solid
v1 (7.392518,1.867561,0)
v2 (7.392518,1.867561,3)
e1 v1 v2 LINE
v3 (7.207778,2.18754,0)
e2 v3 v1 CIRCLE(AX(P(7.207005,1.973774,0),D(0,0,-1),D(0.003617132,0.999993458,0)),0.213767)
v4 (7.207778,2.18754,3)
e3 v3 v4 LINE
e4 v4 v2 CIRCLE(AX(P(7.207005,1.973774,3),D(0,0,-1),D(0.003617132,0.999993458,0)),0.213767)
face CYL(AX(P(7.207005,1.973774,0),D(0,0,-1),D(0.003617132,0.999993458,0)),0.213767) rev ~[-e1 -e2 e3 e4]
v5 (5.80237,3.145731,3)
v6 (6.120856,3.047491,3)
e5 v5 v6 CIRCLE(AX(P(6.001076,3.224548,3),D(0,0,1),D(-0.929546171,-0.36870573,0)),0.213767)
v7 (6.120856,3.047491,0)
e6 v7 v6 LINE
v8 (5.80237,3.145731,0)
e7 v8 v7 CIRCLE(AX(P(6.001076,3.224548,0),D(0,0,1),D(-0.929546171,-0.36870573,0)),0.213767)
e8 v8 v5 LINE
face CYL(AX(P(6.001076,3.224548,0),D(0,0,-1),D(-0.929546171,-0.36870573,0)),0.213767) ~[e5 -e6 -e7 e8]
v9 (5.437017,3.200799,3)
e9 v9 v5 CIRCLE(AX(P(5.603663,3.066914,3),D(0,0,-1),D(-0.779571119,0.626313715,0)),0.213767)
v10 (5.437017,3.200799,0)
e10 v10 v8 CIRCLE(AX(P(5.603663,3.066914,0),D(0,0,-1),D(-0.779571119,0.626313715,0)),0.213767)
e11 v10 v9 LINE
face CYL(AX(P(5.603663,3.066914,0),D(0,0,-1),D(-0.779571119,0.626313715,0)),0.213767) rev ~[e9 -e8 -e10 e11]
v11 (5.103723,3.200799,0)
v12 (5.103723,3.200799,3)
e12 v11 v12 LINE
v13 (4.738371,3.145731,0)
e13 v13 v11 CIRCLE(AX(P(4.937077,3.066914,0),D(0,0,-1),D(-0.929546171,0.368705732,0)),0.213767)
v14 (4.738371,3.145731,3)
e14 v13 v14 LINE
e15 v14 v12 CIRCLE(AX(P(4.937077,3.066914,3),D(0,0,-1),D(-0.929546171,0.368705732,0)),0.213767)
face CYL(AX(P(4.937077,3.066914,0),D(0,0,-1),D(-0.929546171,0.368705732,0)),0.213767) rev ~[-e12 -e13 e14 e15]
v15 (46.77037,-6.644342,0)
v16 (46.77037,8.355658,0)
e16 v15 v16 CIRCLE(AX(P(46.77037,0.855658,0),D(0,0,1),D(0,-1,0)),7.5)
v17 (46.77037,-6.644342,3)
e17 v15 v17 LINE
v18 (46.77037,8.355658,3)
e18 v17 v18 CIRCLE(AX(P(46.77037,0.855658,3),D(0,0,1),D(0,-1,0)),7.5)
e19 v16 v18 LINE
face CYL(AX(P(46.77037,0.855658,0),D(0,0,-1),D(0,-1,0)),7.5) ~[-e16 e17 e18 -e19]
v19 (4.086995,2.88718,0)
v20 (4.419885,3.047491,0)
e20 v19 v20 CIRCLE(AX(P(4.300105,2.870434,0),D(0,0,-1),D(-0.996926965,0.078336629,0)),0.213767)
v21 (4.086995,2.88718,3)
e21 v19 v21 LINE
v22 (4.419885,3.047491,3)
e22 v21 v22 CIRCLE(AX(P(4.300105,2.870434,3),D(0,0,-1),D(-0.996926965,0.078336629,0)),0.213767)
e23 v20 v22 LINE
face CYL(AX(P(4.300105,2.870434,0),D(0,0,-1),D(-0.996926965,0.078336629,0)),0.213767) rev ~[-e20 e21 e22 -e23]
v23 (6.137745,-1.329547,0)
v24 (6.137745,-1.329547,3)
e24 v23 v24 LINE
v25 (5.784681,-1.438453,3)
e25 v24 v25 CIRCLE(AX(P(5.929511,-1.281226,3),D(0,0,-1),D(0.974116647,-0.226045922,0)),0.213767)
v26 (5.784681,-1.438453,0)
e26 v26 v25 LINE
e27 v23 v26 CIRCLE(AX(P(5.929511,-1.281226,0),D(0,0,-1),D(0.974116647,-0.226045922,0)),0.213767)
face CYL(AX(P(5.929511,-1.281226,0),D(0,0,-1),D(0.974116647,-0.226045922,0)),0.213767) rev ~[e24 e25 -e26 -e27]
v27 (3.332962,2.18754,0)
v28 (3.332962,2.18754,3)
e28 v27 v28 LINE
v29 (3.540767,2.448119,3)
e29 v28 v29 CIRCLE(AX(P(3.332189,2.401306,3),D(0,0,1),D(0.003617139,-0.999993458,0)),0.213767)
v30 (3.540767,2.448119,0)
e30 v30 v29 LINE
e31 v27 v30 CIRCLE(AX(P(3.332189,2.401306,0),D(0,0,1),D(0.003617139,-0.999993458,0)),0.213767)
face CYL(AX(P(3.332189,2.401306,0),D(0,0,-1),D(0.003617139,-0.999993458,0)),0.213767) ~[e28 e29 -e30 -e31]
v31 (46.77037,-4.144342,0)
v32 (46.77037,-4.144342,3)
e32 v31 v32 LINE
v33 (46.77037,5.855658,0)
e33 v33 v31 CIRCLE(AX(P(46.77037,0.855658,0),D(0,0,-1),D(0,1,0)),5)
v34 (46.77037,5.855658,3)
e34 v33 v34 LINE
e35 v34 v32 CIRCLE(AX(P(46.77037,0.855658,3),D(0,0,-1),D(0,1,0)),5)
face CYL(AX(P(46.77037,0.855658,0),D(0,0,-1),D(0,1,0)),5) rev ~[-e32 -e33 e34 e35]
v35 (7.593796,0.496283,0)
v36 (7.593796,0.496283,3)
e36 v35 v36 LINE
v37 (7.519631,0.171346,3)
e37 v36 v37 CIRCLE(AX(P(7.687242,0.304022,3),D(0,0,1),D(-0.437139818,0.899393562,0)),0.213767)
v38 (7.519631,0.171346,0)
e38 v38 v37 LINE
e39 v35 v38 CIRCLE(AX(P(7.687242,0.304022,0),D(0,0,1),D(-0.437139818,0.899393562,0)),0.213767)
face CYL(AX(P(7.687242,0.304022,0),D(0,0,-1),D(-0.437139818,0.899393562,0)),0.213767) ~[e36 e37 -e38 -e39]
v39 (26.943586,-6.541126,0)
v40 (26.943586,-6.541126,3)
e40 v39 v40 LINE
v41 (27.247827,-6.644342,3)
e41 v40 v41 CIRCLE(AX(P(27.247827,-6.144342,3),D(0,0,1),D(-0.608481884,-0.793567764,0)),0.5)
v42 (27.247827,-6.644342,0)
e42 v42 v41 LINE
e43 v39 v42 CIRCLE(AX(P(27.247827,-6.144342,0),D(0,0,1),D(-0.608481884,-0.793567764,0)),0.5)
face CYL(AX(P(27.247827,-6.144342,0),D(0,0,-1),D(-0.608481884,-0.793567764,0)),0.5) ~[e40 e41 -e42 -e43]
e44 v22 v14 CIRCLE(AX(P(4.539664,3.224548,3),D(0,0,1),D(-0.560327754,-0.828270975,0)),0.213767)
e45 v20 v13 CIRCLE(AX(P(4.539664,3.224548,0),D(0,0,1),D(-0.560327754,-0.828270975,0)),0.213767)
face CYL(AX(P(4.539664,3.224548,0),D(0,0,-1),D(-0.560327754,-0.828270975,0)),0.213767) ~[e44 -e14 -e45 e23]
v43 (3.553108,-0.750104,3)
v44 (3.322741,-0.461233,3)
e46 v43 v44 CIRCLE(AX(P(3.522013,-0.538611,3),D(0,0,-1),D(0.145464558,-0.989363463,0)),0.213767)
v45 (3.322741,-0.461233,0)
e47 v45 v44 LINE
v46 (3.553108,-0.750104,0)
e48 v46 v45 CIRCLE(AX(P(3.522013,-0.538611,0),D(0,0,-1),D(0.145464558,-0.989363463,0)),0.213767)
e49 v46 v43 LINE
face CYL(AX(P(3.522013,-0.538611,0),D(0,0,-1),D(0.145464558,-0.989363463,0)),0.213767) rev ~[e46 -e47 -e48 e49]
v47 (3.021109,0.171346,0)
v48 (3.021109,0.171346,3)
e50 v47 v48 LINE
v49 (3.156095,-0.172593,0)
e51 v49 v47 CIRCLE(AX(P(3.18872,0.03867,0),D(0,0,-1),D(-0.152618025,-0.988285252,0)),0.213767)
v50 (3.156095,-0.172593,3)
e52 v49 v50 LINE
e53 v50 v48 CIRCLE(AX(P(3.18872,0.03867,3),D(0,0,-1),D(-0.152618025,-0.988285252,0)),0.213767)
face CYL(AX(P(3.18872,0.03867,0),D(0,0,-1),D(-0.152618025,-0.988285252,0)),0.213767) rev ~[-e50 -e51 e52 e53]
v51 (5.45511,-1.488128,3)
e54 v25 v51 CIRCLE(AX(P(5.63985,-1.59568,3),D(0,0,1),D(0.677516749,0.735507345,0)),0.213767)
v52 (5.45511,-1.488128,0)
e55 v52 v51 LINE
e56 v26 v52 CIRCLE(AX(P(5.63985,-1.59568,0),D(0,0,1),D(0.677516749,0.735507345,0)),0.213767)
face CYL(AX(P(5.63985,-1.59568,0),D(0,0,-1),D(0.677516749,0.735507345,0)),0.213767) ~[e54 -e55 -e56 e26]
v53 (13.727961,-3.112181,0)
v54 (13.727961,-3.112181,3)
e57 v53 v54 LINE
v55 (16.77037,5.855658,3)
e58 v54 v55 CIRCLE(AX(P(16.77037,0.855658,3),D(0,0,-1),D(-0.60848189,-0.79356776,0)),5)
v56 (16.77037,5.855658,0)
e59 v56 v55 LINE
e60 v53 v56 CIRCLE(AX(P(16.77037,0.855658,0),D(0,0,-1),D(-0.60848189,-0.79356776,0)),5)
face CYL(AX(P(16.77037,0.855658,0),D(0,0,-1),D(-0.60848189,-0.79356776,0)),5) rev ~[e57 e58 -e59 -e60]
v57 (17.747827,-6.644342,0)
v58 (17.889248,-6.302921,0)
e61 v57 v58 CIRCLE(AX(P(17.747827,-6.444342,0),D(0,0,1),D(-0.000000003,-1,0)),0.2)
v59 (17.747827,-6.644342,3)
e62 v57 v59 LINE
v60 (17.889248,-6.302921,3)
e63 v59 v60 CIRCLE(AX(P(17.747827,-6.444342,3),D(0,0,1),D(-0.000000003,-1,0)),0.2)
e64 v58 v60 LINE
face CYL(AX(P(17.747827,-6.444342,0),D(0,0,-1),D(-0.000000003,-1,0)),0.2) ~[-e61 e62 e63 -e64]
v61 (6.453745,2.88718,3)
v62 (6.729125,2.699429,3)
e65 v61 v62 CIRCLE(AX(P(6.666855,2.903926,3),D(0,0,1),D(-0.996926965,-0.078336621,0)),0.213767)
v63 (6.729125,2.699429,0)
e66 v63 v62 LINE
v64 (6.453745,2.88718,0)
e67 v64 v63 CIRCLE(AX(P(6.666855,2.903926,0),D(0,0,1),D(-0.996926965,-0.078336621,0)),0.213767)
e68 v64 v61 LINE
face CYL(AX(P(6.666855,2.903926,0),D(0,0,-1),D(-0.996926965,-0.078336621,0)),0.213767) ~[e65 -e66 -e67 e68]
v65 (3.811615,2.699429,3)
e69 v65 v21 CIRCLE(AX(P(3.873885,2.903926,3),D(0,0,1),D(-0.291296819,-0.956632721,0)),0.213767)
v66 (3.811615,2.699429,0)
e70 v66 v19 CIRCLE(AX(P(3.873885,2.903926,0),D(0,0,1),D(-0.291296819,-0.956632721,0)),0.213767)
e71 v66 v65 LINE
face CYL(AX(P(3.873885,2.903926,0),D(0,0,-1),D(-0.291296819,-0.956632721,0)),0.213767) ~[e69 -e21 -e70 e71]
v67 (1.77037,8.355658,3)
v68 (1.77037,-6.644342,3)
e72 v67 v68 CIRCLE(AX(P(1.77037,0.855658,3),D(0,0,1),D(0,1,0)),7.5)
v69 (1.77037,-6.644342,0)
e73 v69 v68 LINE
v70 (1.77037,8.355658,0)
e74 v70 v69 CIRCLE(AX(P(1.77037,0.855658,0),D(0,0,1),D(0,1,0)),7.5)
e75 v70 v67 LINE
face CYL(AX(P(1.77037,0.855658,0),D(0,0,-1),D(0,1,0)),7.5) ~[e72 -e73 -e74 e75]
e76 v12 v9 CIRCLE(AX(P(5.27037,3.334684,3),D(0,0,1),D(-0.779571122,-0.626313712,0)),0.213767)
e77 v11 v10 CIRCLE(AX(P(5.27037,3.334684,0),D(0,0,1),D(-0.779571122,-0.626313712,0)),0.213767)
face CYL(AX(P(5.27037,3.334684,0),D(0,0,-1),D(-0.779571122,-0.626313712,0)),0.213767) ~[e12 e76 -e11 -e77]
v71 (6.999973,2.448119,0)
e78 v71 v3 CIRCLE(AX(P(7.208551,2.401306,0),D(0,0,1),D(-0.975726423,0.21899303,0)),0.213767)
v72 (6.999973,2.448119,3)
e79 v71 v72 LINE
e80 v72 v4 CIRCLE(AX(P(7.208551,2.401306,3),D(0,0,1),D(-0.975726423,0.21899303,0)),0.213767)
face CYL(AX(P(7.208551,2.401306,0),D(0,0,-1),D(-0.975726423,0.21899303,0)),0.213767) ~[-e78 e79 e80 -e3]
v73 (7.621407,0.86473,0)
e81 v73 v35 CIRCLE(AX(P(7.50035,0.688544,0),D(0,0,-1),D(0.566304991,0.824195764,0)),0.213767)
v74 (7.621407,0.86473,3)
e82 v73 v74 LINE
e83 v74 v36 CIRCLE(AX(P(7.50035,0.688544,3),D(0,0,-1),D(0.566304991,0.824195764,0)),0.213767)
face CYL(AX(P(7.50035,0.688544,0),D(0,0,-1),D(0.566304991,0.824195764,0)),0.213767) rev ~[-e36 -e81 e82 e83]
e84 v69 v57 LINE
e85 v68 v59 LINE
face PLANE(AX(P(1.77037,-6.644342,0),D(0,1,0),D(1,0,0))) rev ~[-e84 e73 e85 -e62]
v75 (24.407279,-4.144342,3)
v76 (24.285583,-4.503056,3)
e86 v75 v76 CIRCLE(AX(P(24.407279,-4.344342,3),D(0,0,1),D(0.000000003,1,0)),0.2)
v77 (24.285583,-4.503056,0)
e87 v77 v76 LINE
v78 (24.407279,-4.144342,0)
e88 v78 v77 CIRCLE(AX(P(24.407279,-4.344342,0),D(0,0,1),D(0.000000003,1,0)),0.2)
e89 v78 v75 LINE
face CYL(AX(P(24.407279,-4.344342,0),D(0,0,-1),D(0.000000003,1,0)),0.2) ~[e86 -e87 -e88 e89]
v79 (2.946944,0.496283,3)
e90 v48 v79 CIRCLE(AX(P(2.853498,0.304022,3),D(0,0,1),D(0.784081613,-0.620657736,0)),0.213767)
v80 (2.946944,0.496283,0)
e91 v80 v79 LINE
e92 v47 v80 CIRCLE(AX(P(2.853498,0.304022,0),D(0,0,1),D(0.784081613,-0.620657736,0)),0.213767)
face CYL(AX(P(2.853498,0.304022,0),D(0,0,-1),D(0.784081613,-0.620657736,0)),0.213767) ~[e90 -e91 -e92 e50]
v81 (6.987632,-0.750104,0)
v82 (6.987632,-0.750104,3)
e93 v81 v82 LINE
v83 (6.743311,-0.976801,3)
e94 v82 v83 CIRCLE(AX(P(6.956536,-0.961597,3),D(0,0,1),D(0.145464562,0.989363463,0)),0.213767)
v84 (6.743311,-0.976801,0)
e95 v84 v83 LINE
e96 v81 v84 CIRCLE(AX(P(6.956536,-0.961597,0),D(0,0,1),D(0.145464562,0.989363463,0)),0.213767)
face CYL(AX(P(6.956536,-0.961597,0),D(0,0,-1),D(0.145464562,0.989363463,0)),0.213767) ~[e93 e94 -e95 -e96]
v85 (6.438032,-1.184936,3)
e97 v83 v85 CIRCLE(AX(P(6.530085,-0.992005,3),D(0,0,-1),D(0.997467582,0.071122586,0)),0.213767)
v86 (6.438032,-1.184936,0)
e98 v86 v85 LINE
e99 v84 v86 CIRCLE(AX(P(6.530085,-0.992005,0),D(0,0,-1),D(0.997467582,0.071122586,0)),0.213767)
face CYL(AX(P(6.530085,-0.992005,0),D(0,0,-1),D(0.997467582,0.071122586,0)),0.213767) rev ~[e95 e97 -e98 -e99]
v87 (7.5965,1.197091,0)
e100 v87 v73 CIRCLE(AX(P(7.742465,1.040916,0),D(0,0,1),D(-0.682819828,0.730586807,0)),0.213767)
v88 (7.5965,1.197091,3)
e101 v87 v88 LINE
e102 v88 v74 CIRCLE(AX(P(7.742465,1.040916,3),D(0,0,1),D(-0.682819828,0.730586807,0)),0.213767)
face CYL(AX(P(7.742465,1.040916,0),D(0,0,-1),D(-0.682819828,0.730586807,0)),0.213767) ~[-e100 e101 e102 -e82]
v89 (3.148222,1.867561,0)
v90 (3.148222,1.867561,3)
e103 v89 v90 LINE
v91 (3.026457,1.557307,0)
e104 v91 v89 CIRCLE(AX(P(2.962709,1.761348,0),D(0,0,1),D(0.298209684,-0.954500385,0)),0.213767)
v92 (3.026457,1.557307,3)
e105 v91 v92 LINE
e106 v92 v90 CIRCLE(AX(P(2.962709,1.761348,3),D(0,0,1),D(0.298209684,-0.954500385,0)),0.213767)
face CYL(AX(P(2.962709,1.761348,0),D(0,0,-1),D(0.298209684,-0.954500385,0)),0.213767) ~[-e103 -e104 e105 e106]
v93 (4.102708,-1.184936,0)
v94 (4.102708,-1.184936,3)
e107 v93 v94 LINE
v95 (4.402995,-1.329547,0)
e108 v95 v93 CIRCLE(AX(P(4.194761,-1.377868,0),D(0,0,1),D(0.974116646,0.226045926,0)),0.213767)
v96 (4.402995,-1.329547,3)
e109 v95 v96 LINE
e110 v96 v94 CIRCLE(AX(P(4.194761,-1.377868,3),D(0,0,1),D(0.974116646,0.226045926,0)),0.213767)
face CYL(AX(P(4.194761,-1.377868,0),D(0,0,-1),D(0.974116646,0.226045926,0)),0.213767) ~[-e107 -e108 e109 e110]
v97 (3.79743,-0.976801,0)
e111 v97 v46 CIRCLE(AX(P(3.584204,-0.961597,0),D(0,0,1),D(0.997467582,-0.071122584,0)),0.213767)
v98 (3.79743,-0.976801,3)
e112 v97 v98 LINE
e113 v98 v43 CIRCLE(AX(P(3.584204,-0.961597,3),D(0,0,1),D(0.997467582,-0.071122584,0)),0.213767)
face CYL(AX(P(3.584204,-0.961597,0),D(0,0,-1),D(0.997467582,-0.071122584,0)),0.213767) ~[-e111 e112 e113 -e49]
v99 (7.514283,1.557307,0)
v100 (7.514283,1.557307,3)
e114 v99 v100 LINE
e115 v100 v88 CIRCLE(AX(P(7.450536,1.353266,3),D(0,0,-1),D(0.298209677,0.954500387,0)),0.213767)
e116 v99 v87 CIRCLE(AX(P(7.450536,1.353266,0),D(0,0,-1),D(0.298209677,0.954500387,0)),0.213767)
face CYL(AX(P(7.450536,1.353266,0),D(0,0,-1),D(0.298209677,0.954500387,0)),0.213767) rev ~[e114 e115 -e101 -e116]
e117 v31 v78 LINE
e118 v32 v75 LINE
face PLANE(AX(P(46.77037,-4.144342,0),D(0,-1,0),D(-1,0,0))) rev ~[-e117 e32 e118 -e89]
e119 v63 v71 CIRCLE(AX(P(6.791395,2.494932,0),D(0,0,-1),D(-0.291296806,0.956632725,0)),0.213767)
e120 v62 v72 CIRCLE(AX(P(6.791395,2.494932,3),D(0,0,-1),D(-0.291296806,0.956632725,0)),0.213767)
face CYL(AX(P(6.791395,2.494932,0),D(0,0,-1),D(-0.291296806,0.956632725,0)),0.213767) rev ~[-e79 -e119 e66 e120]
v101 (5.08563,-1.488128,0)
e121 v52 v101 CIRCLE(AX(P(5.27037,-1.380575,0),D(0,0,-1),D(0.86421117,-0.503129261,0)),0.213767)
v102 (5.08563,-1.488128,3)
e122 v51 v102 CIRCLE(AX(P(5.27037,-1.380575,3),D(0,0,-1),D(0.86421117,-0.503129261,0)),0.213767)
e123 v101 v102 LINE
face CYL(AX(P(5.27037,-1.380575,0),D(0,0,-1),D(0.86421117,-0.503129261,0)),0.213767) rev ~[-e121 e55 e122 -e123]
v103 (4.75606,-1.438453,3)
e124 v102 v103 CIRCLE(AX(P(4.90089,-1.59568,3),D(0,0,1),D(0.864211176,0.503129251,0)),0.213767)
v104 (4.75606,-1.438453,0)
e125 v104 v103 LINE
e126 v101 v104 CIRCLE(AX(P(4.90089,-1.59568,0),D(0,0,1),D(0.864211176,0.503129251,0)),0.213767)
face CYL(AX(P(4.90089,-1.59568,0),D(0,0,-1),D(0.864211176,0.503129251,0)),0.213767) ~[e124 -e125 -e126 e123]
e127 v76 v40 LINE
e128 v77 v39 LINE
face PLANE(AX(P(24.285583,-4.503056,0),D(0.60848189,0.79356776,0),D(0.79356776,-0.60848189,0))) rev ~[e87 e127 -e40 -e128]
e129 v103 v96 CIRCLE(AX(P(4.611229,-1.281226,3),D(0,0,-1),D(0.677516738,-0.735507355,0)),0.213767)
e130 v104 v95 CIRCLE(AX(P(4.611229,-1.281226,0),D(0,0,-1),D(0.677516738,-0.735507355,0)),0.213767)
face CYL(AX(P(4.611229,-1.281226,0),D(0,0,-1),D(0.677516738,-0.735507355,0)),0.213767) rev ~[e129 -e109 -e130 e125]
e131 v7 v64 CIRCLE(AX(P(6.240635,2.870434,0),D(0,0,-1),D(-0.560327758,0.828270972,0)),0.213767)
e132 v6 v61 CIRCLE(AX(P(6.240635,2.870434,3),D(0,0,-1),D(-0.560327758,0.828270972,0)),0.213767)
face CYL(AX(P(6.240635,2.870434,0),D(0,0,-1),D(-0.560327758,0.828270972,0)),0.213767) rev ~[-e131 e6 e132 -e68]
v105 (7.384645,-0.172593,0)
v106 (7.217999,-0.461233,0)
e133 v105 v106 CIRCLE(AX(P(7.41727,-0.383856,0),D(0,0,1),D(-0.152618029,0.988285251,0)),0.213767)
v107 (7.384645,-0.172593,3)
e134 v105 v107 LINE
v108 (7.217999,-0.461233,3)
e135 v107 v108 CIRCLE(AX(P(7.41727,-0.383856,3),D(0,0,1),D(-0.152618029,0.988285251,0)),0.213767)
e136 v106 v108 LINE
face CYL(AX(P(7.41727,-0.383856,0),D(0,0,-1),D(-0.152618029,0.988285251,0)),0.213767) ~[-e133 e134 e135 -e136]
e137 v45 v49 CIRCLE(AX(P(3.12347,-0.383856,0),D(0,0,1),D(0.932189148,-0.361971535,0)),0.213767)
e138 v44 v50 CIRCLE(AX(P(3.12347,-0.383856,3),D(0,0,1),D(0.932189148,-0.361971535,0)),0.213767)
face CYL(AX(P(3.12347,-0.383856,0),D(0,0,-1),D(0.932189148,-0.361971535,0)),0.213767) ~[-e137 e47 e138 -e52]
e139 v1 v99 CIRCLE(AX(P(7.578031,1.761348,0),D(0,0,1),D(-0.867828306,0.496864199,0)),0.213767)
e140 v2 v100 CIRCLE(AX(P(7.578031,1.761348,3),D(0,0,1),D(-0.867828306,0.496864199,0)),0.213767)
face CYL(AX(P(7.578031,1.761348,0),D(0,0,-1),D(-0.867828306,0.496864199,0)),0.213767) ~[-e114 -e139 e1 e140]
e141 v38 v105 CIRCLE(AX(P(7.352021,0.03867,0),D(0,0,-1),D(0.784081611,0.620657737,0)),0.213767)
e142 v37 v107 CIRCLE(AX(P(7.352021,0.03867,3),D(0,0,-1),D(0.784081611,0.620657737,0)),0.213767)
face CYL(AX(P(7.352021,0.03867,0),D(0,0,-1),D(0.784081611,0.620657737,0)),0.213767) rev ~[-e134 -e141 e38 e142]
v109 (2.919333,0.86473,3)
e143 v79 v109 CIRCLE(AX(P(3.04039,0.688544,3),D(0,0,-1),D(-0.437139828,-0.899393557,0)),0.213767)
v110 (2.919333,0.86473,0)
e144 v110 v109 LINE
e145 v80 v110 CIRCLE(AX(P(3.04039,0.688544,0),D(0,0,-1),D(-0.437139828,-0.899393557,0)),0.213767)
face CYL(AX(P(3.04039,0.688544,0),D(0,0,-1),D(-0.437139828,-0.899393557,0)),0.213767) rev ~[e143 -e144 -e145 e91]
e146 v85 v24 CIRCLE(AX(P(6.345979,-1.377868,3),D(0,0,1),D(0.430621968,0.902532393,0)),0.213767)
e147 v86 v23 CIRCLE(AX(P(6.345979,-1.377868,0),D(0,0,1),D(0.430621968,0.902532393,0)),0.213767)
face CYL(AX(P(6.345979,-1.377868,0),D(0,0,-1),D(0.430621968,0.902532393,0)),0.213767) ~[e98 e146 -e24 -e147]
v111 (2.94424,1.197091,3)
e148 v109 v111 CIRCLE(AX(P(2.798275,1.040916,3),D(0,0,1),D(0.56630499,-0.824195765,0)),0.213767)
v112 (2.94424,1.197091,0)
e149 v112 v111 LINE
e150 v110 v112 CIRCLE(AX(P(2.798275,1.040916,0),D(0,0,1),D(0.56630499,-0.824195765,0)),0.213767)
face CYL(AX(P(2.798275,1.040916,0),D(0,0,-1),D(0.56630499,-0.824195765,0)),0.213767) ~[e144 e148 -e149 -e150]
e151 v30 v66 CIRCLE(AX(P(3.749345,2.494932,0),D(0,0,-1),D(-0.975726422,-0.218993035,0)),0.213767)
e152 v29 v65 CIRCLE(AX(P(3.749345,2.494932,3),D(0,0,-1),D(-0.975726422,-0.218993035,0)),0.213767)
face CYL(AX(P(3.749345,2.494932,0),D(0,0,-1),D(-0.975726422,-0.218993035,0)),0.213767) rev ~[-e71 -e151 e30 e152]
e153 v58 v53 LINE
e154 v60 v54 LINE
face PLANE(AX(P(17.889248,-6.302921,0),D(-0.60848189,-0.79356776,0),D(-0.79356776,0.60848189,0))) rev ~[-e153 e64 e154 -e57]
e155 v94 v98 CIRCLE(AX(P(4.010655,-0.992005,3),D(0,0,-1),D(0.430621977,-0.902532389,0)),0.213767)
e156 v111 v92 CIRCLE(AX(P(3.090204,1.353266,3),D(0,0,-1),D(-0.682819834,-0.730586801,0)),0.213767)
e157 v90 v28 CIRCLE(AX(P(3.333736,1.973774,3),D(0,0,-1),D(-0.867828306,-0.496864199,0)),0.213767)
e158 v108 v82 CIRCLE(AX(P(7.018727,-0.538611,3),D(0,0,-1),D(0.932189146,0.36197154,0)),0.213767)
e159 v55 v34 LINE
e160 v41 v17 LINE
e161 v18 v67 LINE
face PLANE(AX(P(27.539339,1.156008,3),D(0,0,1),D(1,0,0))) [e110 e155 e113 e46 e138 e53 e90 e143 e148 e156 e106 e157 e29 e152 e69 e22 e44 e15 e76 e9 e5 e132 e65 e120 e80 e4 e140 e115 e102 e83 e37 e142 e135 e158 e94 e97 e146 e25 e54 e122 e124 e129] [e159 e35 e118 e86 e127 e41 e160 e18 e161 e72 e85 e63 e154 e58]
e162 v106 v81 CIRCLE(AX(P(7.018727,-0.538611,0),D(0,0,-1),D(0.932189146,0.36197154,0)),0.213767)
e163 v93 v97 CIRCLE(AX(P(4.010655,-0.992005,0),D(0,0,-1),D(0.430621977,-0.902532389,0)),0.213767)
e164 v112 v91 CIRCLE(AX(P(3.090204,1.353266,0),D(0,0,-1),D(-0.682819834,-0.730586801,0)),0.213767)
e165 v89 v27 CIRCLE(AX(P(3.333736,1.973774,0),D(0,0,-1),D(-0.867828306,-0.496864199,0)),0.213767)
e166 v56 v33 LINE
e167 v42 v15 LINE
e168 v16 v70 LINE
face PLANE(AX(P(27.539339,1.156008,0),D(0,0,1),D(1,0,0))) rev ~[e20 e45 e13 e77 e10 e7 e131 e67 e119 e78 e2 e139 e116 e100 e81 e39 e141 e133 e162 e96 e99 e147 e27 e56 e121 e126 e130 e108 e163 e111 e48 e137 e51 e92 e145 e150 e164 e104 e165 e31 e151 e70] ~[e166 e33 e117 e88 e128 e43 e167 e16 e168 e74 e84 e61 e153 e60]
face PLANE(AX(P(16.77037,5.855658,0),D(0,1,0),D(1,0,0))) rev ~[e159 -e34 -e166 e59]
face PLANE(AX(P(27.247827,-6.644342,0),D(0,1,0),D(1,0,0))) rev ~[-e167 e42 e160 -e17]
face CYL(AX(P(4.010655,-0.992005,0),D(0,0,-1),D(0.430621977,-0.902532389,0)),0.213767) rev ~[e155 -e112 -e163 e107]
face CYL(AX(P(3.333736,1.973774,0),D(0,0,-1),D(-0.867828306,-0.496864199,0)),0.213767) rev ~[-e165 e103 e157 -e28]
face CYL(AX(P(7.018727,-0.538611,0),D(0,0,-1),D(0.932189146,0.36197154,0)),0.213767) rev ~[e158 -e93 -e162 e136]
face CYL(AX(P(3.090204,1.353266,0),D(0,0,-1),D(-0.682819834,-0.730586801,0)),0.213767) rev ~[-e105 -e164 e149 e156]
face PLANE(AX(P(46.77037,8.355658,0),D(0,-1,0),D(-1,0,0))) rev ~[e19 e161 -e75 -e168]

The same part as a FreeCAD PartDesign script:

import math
import FreeCAD as App
import Part
import Sketcher
from FreeCAD import Vector

doc = App.newDocument("Part")
body = doc.addObject("PartDesign::Body", "Body")

sketch1 = body.newObject("Sketcher::SketchObject", "Sketch")
sketch1.AttachmentSupport = (doc.getObject("XY_Plane"), [""])
sketch1.MapMode = "FlatFace"
sketch1.addGeometry(Part.ArcOfCircle(Part.Circle(Vector(16.77037, 0.855658, 0), Vector(0, 0, 1), 5), math.radians(90), math.radians(232.520186)), False)
sketch1.addGeometry(Part.LineSegment(Vector(16.77037, 5.855658, 0), Vector(46.77037, 5.855658, 0)), False)
sketch1.addGeometry(Part.ArcOfCircle(Part.Circle(Vector(46.77037, 0.855658, 0), Vector(0, 0, 1), 5), math.radians(-90), math.radians(90)), False)
sketch1.addGeometry(Part.LineSegment(Vector(46.77037, -4.144342, 0), Vector(24.407279, -4.144342, 0)), False)
sketch1.addGeometry(Part.ArcOfCircle(Part.Circle(Vector(24.407279, -4.344342, 0), Vector(0, 0, 1), 0.2), math.radians(90), math.radians(232.520186)), False)
sketch1.addGeometry(Part.LineSegment(Vector(24.285583, -4.503056, 0), Vector(26.943586, -6.541126, 0)), False)
sketch1.addGeometry(Part.ArcOfCircle(Part.Circle(Vector(27.247827, -6.144342, 0), Vector(0, 0, 1), 0.5), math.radians(-127.479814), math.radians(-90)), False)
sketch1.addGeometry(Part.LineSegment(Vector(27.247827, -6.644342, 0), Vector(46.77037, -6.644342, 0)), False)
sketch1.addGeometry(Part.ArcOfCircle(Part.Circle(Vector(46.77037, 0.855658, 0), Vector(0, 0, 1), 7.5), math.radians(-90), math.radians(90)), False)
sketch1.addGeometry(Part.LineSegment(Vector(46.77037, 8.355658, 0), Vector(1.77037, 8.355658, 0)), False)
sketch1.addGeometry(Part.ArcOfCircle(Part.Circle(Vector(1.77037, 0.855658, 0), Vector(0, 0, 1), 7.5), math.radians(90), math.radians(270)), False)
sketch1.addGeometry(Part.LineSegment(Vector(1.77037, -6.644342, 0), Vector(17.747827, -6.644342, 0)), False)
sketch1.addGeometry(Part.ArcOfCircle(Part.Circle(Vector(17.747827, -6.444342, 0), Vector(0, 0, 1), 0.2), math.radians(-90), math.radians(45)), False)
sketch1.addGeometry(Part.LineSegment(Vector(17.889248, -6.302921, 0), Vector(13.727961, -3.112181, 0)), False)
sketch1.addGeometry(Part.ArcOfCircle(Part.Circle(Vector(4.937077, 3.066914, 0), Vector(0, 0, 1), 0.213767), math.radians(38.778676), math.radians(158.364182)), False)
sketch1.addGeometry(Part.ArcOfCircle(Part.Circle(Vector(5.27037, 3.334684, 0), Vector(0, 0, 1), 0.213767), math.radians(-141.221324), math.radians(-38.778676)), False)
sketch1.addGeometry(Part.ArcOfCircle(Part.Circle(Vector(5.603663, 3.066914, 0), Vector(0, 0, 1), 0.213767), math.radians(21.635818), math.radians(141.221324)), False)
sketch1.addGeometry(Part.ArcOfCircle(Part.Circle(Vector(6.001076, 3.224548, 0), Vector(0, 0, 1), 0.213767), math.radians(-158.364182), math.radians(-55.921533)), False)
sketch1.addGeometry(Part.ArcOfCircle(Part.Circle(Vector(6.240635, 2.870434, 0), Vector(0, 0, 1), 0.213767), math.radians(4.492961), math.radians(124.078468)), False)
sketch1.addGeometry(Part.ArcOfCircle(Part.Circle(Vector(6.666855, 2.903926, 0), Vector(0, 0, 1), 0.213767), math.radians(-175.507039), math.radians(-73.06439)), False)
sketch1.addGeometry(Part.ArcOfCircle(Part.Circle(Vector(6.791395, 2.494932, 0), Vector(0, 0, 1), 0.213767), math.radians(-12.649896), math.radians(106.93561)), False)
sketch1.addGeometry(Part.ArcOfCircle(Part.Circle(Vector(7.208551, 2.401306, 0), Vector(0, 0, 1), 0.213767), math.radians(167.350104), math.radians(269.792753)), False)
sketch1.addGeometry(Part.ArcOfCircle(Part.Circle(Vector(7.207005, 1.973774, 0), Vector(0, 0, 1), 0.213767), math.radians(-29.792753), math.radians(89.792753)), False)
sketch1.addGeometry(Part.ArcOfCircle(Part.Circle(Vector(7.578031, 1.761348, 0), Vector(0, 0, 1), 0.213767), math.radians(150.207247), math.radians(252.649896)), False)
sketch1.addGeometry(Part.ArcOfCircle(Part.Circle(Vector(7.450536, 1.353266, 0), Vector(0, 0, 1), 0.213767), math.radians(-46.93561), math.radians(72.649896)), False)
sketch1.addGeometry(Part.ArcOfCircle(Part.Circle(Vector(7.742465, 1.040916, 0), Vector(0, 0, 1), 0.213767), math.radians(133.064389), math.radians(235.507039)), False)
sketch1.addGeometry(Part.ArcOfCircle(Part.Circle(Vector(7.50035, 0.688544, 0), Vector(0, 0, 1), 0.213767), math.radians(-64.078467), math.radians(55.507039)), False)
sketch1.addGeometry(Part.ArcOfCircle(Part.Circle(Vector(7.687242, 0.304022, 0), Vector(0, 0, 1), 0.213767), math.radians(115.921532), math.radians(218.364182)), False)
sketch1.addGeometry(Part.ArcOfCircle(Part.Circle(Vector(7.352021, 0.03867, 0), Vector(0, 0, 1), 0.213767), math.radians(-81.221325), math.radians(38.364182)), False)
sketch1.addGeometry(Part.ArcOfCircle(Part.Circle(Vector(7.41727, -0.383856, 0), Vector(0, 0, 1), 0.213767), math.radians(98.778676), math.radians(201.221324)), False)
sketch1.addGeometry(Part.ArcOfCircle(Part.Circle(Vector(7.018727, -0.538611, 0), Vector(0, 0, 1), 0.213767), math.radians(-98.364182), math.radians(21.221325)), False)
sketch1.addGeometry(Part.ArcOfCircle(Part.Circle(Vector(6.956536, -0.961597, 0), Vector(0, 0, 1), 0.213767), math.radians(81.635818), math.radians(184.078468)), False)
sketch1.addGeometry(Part.ArcOfCircle(Part.Circle(Vector(6.530085, -0.992005, 0), Vector(0, 0, 1), 0.213767), math.radians(-115.507039), math.radians(4.078467)), False)
sketch1.addGeometry(Part.ArcOfCircle(Part.Circle(Vector(6.345979, -1.377868, 0), Vector(0, 0, 1), 0.213767), math.radians(64.492962), math.radians(166.93561)), False)
sketch1.addGeometry(Part.ArcOfCircle(Part.Circle(Vector(5.929511, -1.281226, 0), Vector(0, 0, 1), 0.213767), math.radians(-132.649896), math.radians(-13.06439)), False)
sketch1.addGeometry(Part.ArcOfCircle(Part.Circle(Vector(5.63985, -1.59568, 0), Vector(0, 0, 1), 0.213767), math.radians(47.350103), math.radians(149.792754)), False)
sketch1.addGeometry(Part.ArcOfCircle(Part.Circle(Vector(5.27037, -1.380575, 0), Vector(0, 0, 1), 0.213767), math.radians(-149.792753), math.radians(-30.207247)), False)
sketch1.addGeometry(Part.ArcOfCircle(Part.Circle(Vector(4.90089, -1.59568, 0), Vector(0, 0, 1), 0.213767), math.radians(30.207246), math.radians(132.649896)), False)
sketch1.addGeometry(Part.ArcOfCircle(Part.Circle(Vector(4.611229, -1.281226, 0), Vector(0, 0, 1), 0.213767), math.radians(-166.93561), math.radians(-47.350104)), False)
sketch1.addGeometry(Part.ArcOfCircle(Part.Circle(Vector(4.194761, -1.377868, 0), Vector(0, 0, 1), 0.213767), math.radians(13.06439), math.radians(115.507039)), False)
sketch1.addGeometry(Part.ArcOfCircle(Part.Circle(Vector(4.010655, -0.992005, 0), Vector(0, 0, 1), 0.213767), math.radians(175.921533), math.radians(295.507039)), False)
sketch1.addGeometry(Part.ArcOfCircle(Part.Circle(Vector(3.584204, -0.961597, 0), Vector(0, 0, 1), 0.213767), math.radians(-4.078467), math.radians(98.364182)), False)
sketch1.addGeometry(Part.ArcOfCircle(Part.Circle(Vector(3.522013, -0.538611, 0), Vector(0, 0, 1), 0.213767), math.radians(158.778675), math.radians(278.364182)), False)
sketch1.addGeometry(Part.ArcOfCircle(Part.Circle(Vector(3.12347, -0.383856, 0), Vector(0, 0, 1), 0.213767), math.radians(-21.221324), math.radians(81.221324)), False)
sketch1.addGeometry(Part.ArcOfCircle(Part.Circle(Vector(3.18872, 0.03867, 0), Vector(0, 0, 1), 0.213767), math.radians(141.635819), math.radians(261.221324)), False)
sketch1.addGeometry(Part.ArcOfCircle(Part.Circle(Vector(2.853498, 0.304022, 0), Vector(0, 0, 1), 0.213767), math.radians(-38.364182), math.radians(64.078467)), False)
sketch1.addGeometry(Part.ArcOfCircle(Part.Circle(Vector(3.04039, 0.688544, 0), Vector(0, 0, 1), 0.213767), math.radians(124.492961), math.radians(244.078467)), False)
sketch1.addGeometry(Part.ArcOfCircle(Part.Circle(Vector(2.798275, 1.040916, 0), Vector(0, 0, 1), 0.213767), math.radians(-55.507039), math.radians(46.93561)), False)
sketch1.addGeometry(Part.ArcOfCircle(Part.Circle(Vector(3.090204, 1.353266, 0), Vector(0, 0, 1), 0.213767), math.radians(107.350104), math.radians(226.93561)), False)
sketch1.addGeometry(Part.ArcOfCircle(Part.Circle(Vector(2.962709, 1.761348, 0), Vector(0, 0, 1), 0.213767), math.radians(-72.649896), math.radians(29.792753)), False)
sketch1.addGeometry(Part.ArcOfCircle(Part.Circle(Vector(3.333736, 1.973774, 0), Vector(0, 0, 1), 0.213767), math.radians(90.207247), math.radians(209.792753)), False)
sketch1.addGeometry(Part.ArcOfCircle(Part.Circle(Vector(3.332189, 2.401306, 0), Vector(0, 0, 1), 0.213767), math.radians(-89.792753), math.radians(12.649896)), False)
sketch1.addGeometry(Part.ArcOfCircle(Part.Circle(Vector(3.749345, 2.494932, 0), Vector(0, 0, 1), 0.213767), math.radians(73.06439), math.radians(192.649896)), False)
sketch1.addGeometry(Part.ArcOfCircle(Part.Circle(Vector(3.873885, 2.903926, 0), Vector(0, 0, 1), 0.213767), math.radians(-106.935611), math.radians(-4.492961)), False)
sketch1.addGeometry(Part.ArcOfCircle(Part.Circle(Vector(4.300105, 2.870434, 0), Vector(0, 0, 1), 0.213767), math.radians(55.921533), math.radians(175.507038)), False)
sketch1.addGeometry(Part.ArcOfCircle(Part.Circle(Vector(4.539664, 3.224548, 0), Vector(0, 0, 1), 0.213767), math.radians(-124.078467), math.radians(-21.635818)), False)
sketch1.addConstraint(Sketcher.Constraint("Coincident", 0, 1, 1, 1))
sketch1.addConstraint(Sketcher.Constraint("Coincident", 1, 2, 2, 2))
sketch1.addConstraint(Sketcher.Constraint("Coincident", 2, 1, 3, 1))
sketch1.addConstraint(Sketcher.Constraint("Coincident", 3, 2, 4, 1))
sketch1.addConstraint(Sketcher.Constraint("Coincident", 4, 2, 5, 1))
sketch1.addConstraint(Sketcher.Constraint("Coincident", 5, 2, 6, 1))
sketch1.addConstraint(Sketcher.Constraint("Coincident", 6, 2, 7, 1))
sketch1.addConstraint(Sketcher.Constraint("Coincident", 7, 2, 8, 1))
sketch1.addConstraint(Sketcher.Constraint("Coincident", 8, 2, 9, 1))
sketch1.addConstraint(Sketcher.Constraint("Coincident", 9, 2, 10, 1))
sketch1.addConstraint(Sketcher.Constraint("Coincident", 10, 2, 11, 1))
sketch1.addConstraint(Sketcher.Constraint("Coincident", 11, 2, 12, 1))
sketch1.addConstraint(Sketcher.Constraint("Coincident", 12, 2, 13, 1))
sketch1.addConstraint(Sketcher.Constraint("Coincident", 13, 2, 0, 2))
sketch1.addConstraint(Sketcher.Constraint("Coincident", 14, 1, 15, 1))
sketch1.addConstraint(Sketcher.Constraint("Coincident", 15, 2, 16, 2))
sketch1.addConstraint(Sketcher.Constraint("Coincident", 16, 1, 17, 1))
sketch1.addConstraint(Sketcher.Constraint("Coincident", 17, 2, 18, 2))
sketch1.addConstraint(Sketcher.Constraint("Coincident", 18, 1, 19, 1))
sketch1.addConstraint(Sketcher.Constraint("Coincident", 19, 2, 20, 2))
sketch1.addConstraint(Sketcher.Constraint("Coincident", 20, 1, 21, 1))
sketch1.addConstraint(Sketcher.Constraint("Coincident", 21, 2, 22, 2))
sketch1.addConstraint(Sketcher.Constraint("Coincident", 22, 1, 23, 1))
sketch1.addConstraint(Sketcher.Constraint("Coincident", 23, 2, 24, 2))
sketch1.addConstraint(Sketcher.Constraint("Coincident", 24, 1, 25, 1))
sketch1.addConstraint(Sketcher.Constraint("Coincident", 25, 2, 26, 2))
sketch1.addConstraint(Sketcher.Constraint("Coincident", 26, 1, 27, 1))
sketch1.addConstraint(Sketcher.Constraint("Coincident", 27, 2, 28, 2))
sketch1.addConstraint(Sketcher.Constraint("Coincident", 28, 1, 29, 1))
sketch1.addConstraint(Sketcher.Constraint("Coincident", 29, 2, 30, 2))
sketch1.addConstraint(Sketcher.Constraint("Coincident", 30, 1, 31, 1))
sketch1.addConstraint(Sketcher.Constraint("Coincident", 31, 2, 32, 2))
sketch1.addConstraint(Sketcher.Constraint("Coincident", 32, 1, 33, 1))
sketch1.addConstraint(Sketcher.Constraint("Coincident", 33, 2, 34, 2))
sketch1.addConstraint(Sketcher.Constraint("Coincident", 34, 1, 35, 1))
sketch1.addConstraint(Sketcher.Constraint("Coincident", 35, 2, 36, 2))
sketch1.addConstraint(Sketcher.Constraint("Coincident", 36, 1, 37, 1))
sketch1.addConstraint(Sketcher.Constraint("Coincident", 37, 2, 38, 2))
sketch1.addConstraint(Sketcher.Constraint("Coincident", 38, 1, 39, 1))
sketch1.addConstraint(Sketcher.Constraint("Coincident", 39, 2, 40, 2))
sketch1.addConstraint(Sketcher.Constraint("Coincident", 40, 1, 41, 1))
sketch1.addConstraint(Sketcher.Constraint("Coincident", 41, 2, 42, 2))
sketch1.addConstraint(Sketcher.Constraint("Coincident", 42, 1, 43, 1))
sketch1.addConstraint(Sketcher.Constraint("Coincident", 43, 2, 44, 2))
sketch1.addConstraint(Sketcher.Constraint("Coincident", 44, 1, 45, 1))
sketch1.addConstraint(Sketcher.Constraint("Coincident", 45, 2, 46, 2))
sketch1.addConstraint(Sketcher.Constraint("Coincident", 46, 1, 47, 1))
sketch1.addConstraint(Sketcher.Constraint("Coincident", 47, 2, 48, 2))
sketch1.addConstraint(Sketcher.Constraint("Coincident", 48, 1, 49, 1))
sketch1.addConstraint(Sketcher.Constraint("Coincident", 49, 2, 50, 2))
sketch1.addConstraint(Sketcher.Constraint("Coincident", 50, 1, 51, 1))
sketch1.addConstraint(Sketcher.Constraint("Coincident", 51, 2, 52, 2))
sketch1.addConstraint(Sketcher.Constraint("Coincident", 52, 1, 53, 1))
sketch1.addConstraint(Sketcher.Constraint("Coincident", 53, 2, 54, 2))
sketch1.addConstraint(Sketcher.Constraint("Coincident", 54, 1, 55, 1))
sketch1.addConstraint(Sketcher.Constraint("Coincident", 55, 2, 14, 2))
sketch1.addConstraint(Sketcher.Constraint("Horizontal", 1))
sketch1.addConstraint(Sketcher.Constraint("Horizontal", 3))
sketch1.addConstraint(Sketcher.Constraint("Horizontal", 7))
sketch1.addConstraint(Sketcher.Constraint("Horizontal", 9))
sketch1.addConstraint(Sketcher.Constraint("Horizontal", 11))
sketch1.addConstraint(Sketcher.Constraint("Coincident", 8, 3, 2, 3))
sketch1.addConstraint(Sketcher.Constraint("Radius", 0, 5.0))
sketch1.addConstraint(Sketcher.Constraint("Radius", 2, 5.0))
sketch1.addConstraint(Sketcher.Constraint("Radius", 4, 0.2))
sketch1.addConstraint(Sketcher.Constraint("Radius", 6, 0.5))
sketch1.addConstraint(Sketcher.Constraint("Radius", 8, 7.5))
sketch1.addConstraint(Sketcher.Constraint("Radius", 10, 7.5))
sketch1.addConstraint(Sketcher.Constraint("Radius", 12, 0.2))
sketch1.addConstraint(Sketcher.Constraint("DistanceX", 1, 1, 1, 2, 30.0))
sketch1.addConstraint(Sketcher.Constraint("DistanceX", 9, 2, 9, 1, 45.0))
sketch1.addConstraint(Sketcher.Constraint("DistanceX", -1, 1, 29, 2, 7.217999))
sketch1.addConstraint(Sketcher.Constraint("Radius", 14, 0.213767))
sketch1.addConstraint(Sketcher.Constraint("Radius", 15, 0.213767))
sketch1.addConstraint(Sketcher.Constraint("Radius", 16, 0.213767))
sketch1.addConstraint(Sketcher.Constraint("Radius", 17, 0.213767))
sketch1.addConstraint(Sketcher.Constraint("Radius", 18, 0.213767))
sketch1.addConstraint(Sketcher.Constraint("Radius", 19, 0.213767))
sketch1.addConstraint(Sketcher.Constraint("Radius", 20, 0.213767))
sketch1.addConstraint(Sketcher.Constraint("Radius", 21, 0.213767))
sketch1.addConstraint(Sketcher.Constraint("Radius", 22, 0.213767))
sketch1.addConstraint(Sketcher.Constraint("Radius", 23, 0.213767))
sketch1.addConstraint(Sketcher.Constraint("Radius", 24, 0.213767))
sketch1.addConstraint(Sketcher.Constraint("Radius", 25, 0.213767))
sketch1.addConstraint(Sketcher.Constraint("Radius", 26, 0.213767))
sketch1.addConstraint(Sketcher.Constraint("Radius", 27, 0.213767))
sketch1.addConstraint(Sketcher.Constraint("Radius", 28, 0.213767))
sketch1.addConstraint(Sketcher.Constraint("Radius", 29, 0.213767))
sketch1.addConstraint(Sketcher.Constraint("Radius", 30, 0.213767))
sketch1.addConstraint(Sketcher.Constraint("Radius", 31, 0.213767))
sketch1.addConstraint(Sketcher.Constraint("Radius", 32, 0.213767))
sketch1.addConstraint(Sketcher.Constraint("Radius", 33, 0.213767))
sketch1.addConstraint(Sketcher.Constraint("Radius", 34, 0.213767))
sketch1.addConstraint(Sketcher.Constraint("Radius", 35, 0.213767))
sketch1.addConstraint(Sketcher.Constraint("Radius", 36, 0.213767))
sketch1.addConstraint(Sketcher.Constraint("Radius", 37, 0.213767))
sketch1.addConstraint(Sketcher.Constraint("Radius", 38, 0.213767))
sketch1.addConstraint(Sketcher.Constraint("Radius", 39, 0.213767))
sketch1.addConstraint(Sketcher.Constraint("Radius", 40, 0.213767))
sketch1.addConstraint(Sketcher.Constraint("Radius", 41, 0.213767))
sketch1.addConstraint(Sketcher.Constraint("Radius", 42, 0.213767))
sketch1.addConstraint(Sketcher.Constraint("Radius", 43, 0.213767))
sketch1.addConstraint(Sketcher.Constraint("Radius", 44, 0.213767))
sketch1.addConstraint(Sketcher.Constraint("Radius", 45, 0.213767))
sketch1.addConstraint(Sketcher.Constraint("Radius", 46, 0.213767))
sketch1.addConstraint(Sketcher.Constraint("Radius", 47, 0.213767))
sketch1.addConstraint(Sketcher.Constraint("Radius", 48, 0.213767))
sketch1.addConstraint(Sketcher.Constraint("Radius", 49, 0.213767))
sketch1.addConstraint(Sketcher.Constraint("Radius", 50, 0.213767))
sketch1.addConstraint(Sketcher.Constraint("Radius", 51, 0.213767))
sketch1.addConstraint(Sketcher.Constraint("Radius", 52, 0.213767))
sketch1.addConstraint(Sketcher.Constraint("Radius", 53, 0.213767))
sketch1.addConstraint(Sketcher.Constraint("Radius", 54, 0.213767))
sketch1.addConstraint(Sketcher.Constraint("Radius", 55, 0.213767))
sketch1.addConstraint(Sketcher.Constraint("DistanceX", 3, 2, 3, 1, 22.363091))
sketch1.addConstraint(Sketcher.Constraint("DistanceY", -1, 1, 14, 1, 3.200799))
sketch1.addConstraint(Sketcher.Constraint("DistanceY", -1, 1, 15, 2, 3.200799))
sketch1.addConstraint(Sketcher.Constraint("DistanceX", -1, 1, 24, 1, 7.5965))
sketch1.addConstraint(Sketcher.Constraint("DistanceY", 31, 2, -1, 1, 0.976801))
sketch1.addConstraint(Sketcher.Constraint("DistanceY", 40, 1, -1, 1, 0.976801))
sketch1.addConstraint(Sketcher.Constraint("Distance", 13, 5.243771))
sketch1.addConstraint(Sketcher.Constraint("DistanceX", 7, 1, 7, 2, 19.522543))
sketch1.addConstraint(Sketcher.Constraint("DistanceX", 11, 1, 11, 2, 15.977457))
sketch1.addConstraint(Sketcher.Constraint("DistanceX", -1, 1, 0, 3, 16.77037))
sketch1.addConstraint(Sketcher.Constraint("DistanceX", -1, 1, 2, 3, 46.77037))
sketch1.addConstraint(Sketcher.Constraint("DistanceX", -1, 1, 4, 3, 24.407279))
sketch1.addConstraint(Sketcher.Constraint("DistanceX", -1, 1, 10, 3, 1.77037))
sketch1.addConstraint(Sketcher.Constraint("DistanceX", -1, 1, 15, 3, 5.27037))
sketch1.addConstraint(Sketcher.Constraint("DistanceY", -1, 1, 17, 3, 3.224548))
sketch1.addConstraint(Sketcher.Constraint("DistanceX", -1, 1, 21, 3, 7.208551))
sketch1.addConstraint(Sketcher.Constraint("DistanceX", -1, 1, 23, 3, 7.578031))
sketch1.addConstraint(Sketcher.Constraint("DistanceX", -1, 1, 26, 3, 7.50035))
sketch1.addConstraint(Sketcher.Constraint("DistanceX", -1, 1, 28, 3, 7.352021))
sketch1.addConstraint(Sketcher.Constraint("DistanceY", -1, 1, 28, 3, 0.03867))
sketch1.addConstraint(Sketcher.Constraint("DistanceX", -1, 1, 29, 3, 7.41727))
sketch1.addConstraint(Sketcher.Constraint("DistanceY", 30, 3, -1, 1, 0.538611))
sketch1.addConstraint(Sketcher.Constraint("DistanceX", -1, 1, 33, 3, 6.345979))
sketch1.addConstraint(Sketcher.Constraint("DistanceY", 33, 3, -1, 1, 1.377868))
sketch1.addConstraint(Sketcher.Constraint("DistanceX", -1, 1, 34, 3, 5.929511))
sketch1.addConstraint(Sketcher.Constraint("DistanceX", -1, 1, 35, 3, 5.63985))
sketch1.addConstraint(Sketcher.Constraint("DistanceX", -1, 1, 36, 3, 5.27037))
sketch1.addConstraint(Sketcher.Constraint("DistanceX", -1, 1, 37, 3, 4.90089))
sketch1.addConstraint(Sketcher.Constraint("DistanceX", -1, 1, 38, 3, 4.611229))
sketch1.addConstraint(Sketcher.Constraint("DistanceX", -1, 1, 39, 3, 4.194761))
sketch1.addConstraint(Sketcher.Constraint("DistanceY", 42, 3, -1, 1, 0.538611))
sketch1.addConstraint(Sketcher.Constraint("DistanceX", -1, 1, 43, 3, 3.12347))
sketch1.addConstraint(Sketcher.Constraint("DistanceX", -1, 1, 44, 3, 3.18872))
sketch1.addConstraint(Sketcher.Constraint("DistanceY", -1, 1, 44, 3, 0.03867))
sketch1.addConstraint(Sketcher.Constraint("DistanceX", -1, 1, 46, 3, 3.04039))
sketch1.addConstraint(Sketcher.Constraint("DistanceX", -1, 1, 49, 3, 2.962709))
sketch1.addConstraint(Sketcher.Constraint("DistanceX", -1, 1, 51, 3, 3.332189))
sketch1.addConstraint(Sketcher.Constraint("DistanceY", -1, 1, 55, 3, 3.224548))
sketch1.addConstraint(Sketcher.Constraint("DistanceX", -1, 1, 0, 1, 16.77037))
sketch1.addConstraint(Sketcher.Constraint("DistanceX", -1, 1, 2, 1, 46.77037))
sketch1.addConstraint(Sketcher.Constraint("DistanceX", -1, 1, 7, 2, 46.77037))
sketch1.addConstraint(Sketcher.Constraint("DistanceX", -1, 1, 8, 2, 46.77037))
sketch1.addConstraint(Sketcher.Constraint("DistanceX", -1, 1, 10, 2, 1.77037))
sketch1.addConstraint(Sketcher.Constraint("DistanceX", -1, 1, 12, 2, 17.889248))
sketch1.addConstraint(Sketcher.Constraint("DistanceY", 12, 2, -1, 1, 6.302921))
sketch1.addConstraint(Sketcher.Constraint("DistanceX", -1, 1, 13, 2, 13.727961))
sketch1.addConstraint(Sketcher.Constraint("DistanceX", -1, 1, 16, 1, 5.80237))
sketch1.addConstraint(Sketcher.Constraint("DistanceY", -1, 1, 16, 1, 3.145731))
sketch1.addConstraint(Sketcher.Constraint("DistanceY", -1, 1, 17, 2, 3.047491))
sketch1.addConstraint(Sketcher.Constraint("DistanceY", -1, 1, 18, 1, 2.88718))
sketch1.addConstraint(Sketcher.Constraint("DistanceY", -1, 1, 19, 2, 2.699429))
sketch1.addConstraint(Sketcher.Constraint("DistanceY", -1, 1, 20, 1, 2.448119))
sketch1.addConstraint(Sketcher.Constraint("DistanceY", -1, 1, 21, 2, 2.18754))
sketch1.addConstraint(Sketcher.Constraint("DistanceY", -1, 1, 22, 1, 1.867561))
sketch1.addConstraint(Sketcher.Constraint("DistanceY", -1, 1, 24, 1, 1.197091))
sketch1.addConstraint(Sketcher.Constraint("DistanceY", -1, 1, 25, 2, 0.86473))
sketch1.addConstraint(Sketcher.Constraint("DistanceX", -1, 1, 27, 2, 7.519631))
sketch1.addConstraint(Sketcher.Constraint("DistanceX", -1, 1, 30, 1, 6.987632))
sketch1.addConstraint(Sketcher.Constraint("DistanceX", -1, 1, 31, 2, 6.743311))
sketch1.addConstraint(Sketcher.Constraint("DistanceX", -1, 1, 34, 1, 5.784681))
sketch1.addConstraint(Sketcher.Constraint("DistanceX", -1, 1, 35, 2, 5.45511))
sketch1.addConstraint(Sketcher.Constraint("DistanceX", -1, 1, 36, 1, 5.08563))
sketch1.addConstraint(Sketcher.Constraint("DistanceX", -1, 1, 37, 2, 4.75606))
sketch1.addConstraint(Sketcher.Constraint("DistanceX", -1, 1, 39, 2, 4.102708))
sketch1.addConstraint(Sketcher.Constraint("DistanceX", -1, 1, 40, 1, 3.79743))
sketch1.addConstraint(Sketcher.Constraint("DistanceX", -1, 1, 41, 2, 3.553108))
sketch1.addConstraint(Sketcher.Constraint("DistanceX", -1, 1, 42, 1, 3.322741))
sketch1.addConstraint(Sketcher.Constraint("DistanceX", -1, 1, 44, 1, 3.021109))
sketch1.addConstraint(Sketcher.Constraint("DistanceY", -1, 1, 46, 1, 0.86473))
sketch1.addConstraint(Sketcher.Constraint("DistanceX", -1, 1, 47, 2, 2.94424))
sketch1.addConstraint(Sketcher.Constraint("DistanceY", -1, 1, 47, 2, 1.197091))
sketch1.addConstraint(Sketcher.Constraint("DistanceY", -1, 1, 49, 2, 1.867561))
sketch1.addConstraint(Sketcher.Constraint("DistanceY", -1, 1, 50, 1, 2.18754))
sketch1.addConstraint(Sketcher.Constraint("DistanceY", -1, 1, 51, 2, 2.448119))
sketch1.addConstraint(Sketcher.Constraint("DistanceY", -1, 1, 52, 1, 2.699429))
sketch1.addConstraint(Sketcher.Constraint("DistanceY", -1, 1, 53, 2, 2.88718))
sketch1.addConstraint(Sketcher.Constraint("DistanceY", -1, 1, 54, 1, 3.047491))
sketch1.addConstraint(Sketcher.Constraint("DistanceX", -1, 1, 55, 2, 4.738371))
sketch1.addConstraint(Sketcher.Constraint("DistanceY", -1, 1, 55, 2, 3.145731))
sketch1.addConstraint(Sketcher.Constraint("Distance", 5, 3.349435))
sketch1.addConstraint(Sketcher.Constraint("DistanceX", -1, 1, 6, 3, 27.247827))
sketch1.addConstraint(Sketcher.Constraint("DistanceX", -1, 1, 14, 3, 4.937077))
sketch1.addConstraint(Sketcher.Constraint("DistanceX", -1, 1, 18, 3, 6.240635))
sketch1.addConstraint(Sketcher.Constraint("DistanceX", -1, 1, 19, 3, 6.666855))
sketch1.addConstraint(Sketcher.Constraint("DistanceX", -1, 1, 22, 3, 7.207005))
sketch1.addConstraint(Sketcher.Constraint("DistanceX", -1, 1, 25, 3, 7.742465))
sketch1.addConstraint(Sketcher.Constraint("DistanceX", -1, 1, 45, 3, 2.853498))
sketch1.addConstraint(Sketcher.Constraint("DistanceX", -1, 1, 48, 3, 3.090204))
sketch1.addConstraint(Sketcher.Constraint("DistanceX", -1, 1, 52, 3, 3.749345))
sketch1.addConstraint(Sketcher.Constraint("DistanceX", -1, 1, 53, 3, 3.873885))
sketch1.addConstraint(Sketcher.Constraint("DistanceX", -1, 1, 4, 2, 24.285583))
sketch1.addConstraint(Sketcher.Constraint("DistanceX", -1, 1, 21, 2, 7.207778))
sketch1.addConstraint(Sketcher.Constraint("DistanceX", -1, 1, 23, 2, 7.514283))
sketch1.addConstraint(Sketcher.Constraint("DistanceX", -1, 1, 26, 1, 7.593796))
sketch1.addConstraint(Sketcher.Constraint("DistanceX", -1, 1, 28, 1, 7.384645))
sketch1.addConstraint(Sketcher.Constraint("DistanceX", -1, 1, 32, 1, 6.438032))
sketch1.addConstraint(Sketcher.Constraint("DistanceX", -1, 1, 33, 2, 6.137745))
sketch1.addConstraint(Sketcher.Constraint("DistanceX", -1, 1, 38, 1, 4.402995))
sketch1.addConstraint(Sketcher.Constraint("DistanceX", -1, 1, 43, 2, 3.156095))
sketch1.addConstraint(Sketcher.Constraint("DistanceX", -1, 1, 45, 2, 2.946944))
sketch1.addConstraint(Sketcher.Constraint("DistanceX", -1, 1, 48, 1, 3.026457))
sketch1.addConstraint(Sketcher.Constraint("DistanceX", -1, 1, 50, 1, 3.332962))
pad1 = body.newObject("PartDesign::Pad", "Pad")
pad1.Profile = sketch1
pad1.Length = 3

doc.recompute()
